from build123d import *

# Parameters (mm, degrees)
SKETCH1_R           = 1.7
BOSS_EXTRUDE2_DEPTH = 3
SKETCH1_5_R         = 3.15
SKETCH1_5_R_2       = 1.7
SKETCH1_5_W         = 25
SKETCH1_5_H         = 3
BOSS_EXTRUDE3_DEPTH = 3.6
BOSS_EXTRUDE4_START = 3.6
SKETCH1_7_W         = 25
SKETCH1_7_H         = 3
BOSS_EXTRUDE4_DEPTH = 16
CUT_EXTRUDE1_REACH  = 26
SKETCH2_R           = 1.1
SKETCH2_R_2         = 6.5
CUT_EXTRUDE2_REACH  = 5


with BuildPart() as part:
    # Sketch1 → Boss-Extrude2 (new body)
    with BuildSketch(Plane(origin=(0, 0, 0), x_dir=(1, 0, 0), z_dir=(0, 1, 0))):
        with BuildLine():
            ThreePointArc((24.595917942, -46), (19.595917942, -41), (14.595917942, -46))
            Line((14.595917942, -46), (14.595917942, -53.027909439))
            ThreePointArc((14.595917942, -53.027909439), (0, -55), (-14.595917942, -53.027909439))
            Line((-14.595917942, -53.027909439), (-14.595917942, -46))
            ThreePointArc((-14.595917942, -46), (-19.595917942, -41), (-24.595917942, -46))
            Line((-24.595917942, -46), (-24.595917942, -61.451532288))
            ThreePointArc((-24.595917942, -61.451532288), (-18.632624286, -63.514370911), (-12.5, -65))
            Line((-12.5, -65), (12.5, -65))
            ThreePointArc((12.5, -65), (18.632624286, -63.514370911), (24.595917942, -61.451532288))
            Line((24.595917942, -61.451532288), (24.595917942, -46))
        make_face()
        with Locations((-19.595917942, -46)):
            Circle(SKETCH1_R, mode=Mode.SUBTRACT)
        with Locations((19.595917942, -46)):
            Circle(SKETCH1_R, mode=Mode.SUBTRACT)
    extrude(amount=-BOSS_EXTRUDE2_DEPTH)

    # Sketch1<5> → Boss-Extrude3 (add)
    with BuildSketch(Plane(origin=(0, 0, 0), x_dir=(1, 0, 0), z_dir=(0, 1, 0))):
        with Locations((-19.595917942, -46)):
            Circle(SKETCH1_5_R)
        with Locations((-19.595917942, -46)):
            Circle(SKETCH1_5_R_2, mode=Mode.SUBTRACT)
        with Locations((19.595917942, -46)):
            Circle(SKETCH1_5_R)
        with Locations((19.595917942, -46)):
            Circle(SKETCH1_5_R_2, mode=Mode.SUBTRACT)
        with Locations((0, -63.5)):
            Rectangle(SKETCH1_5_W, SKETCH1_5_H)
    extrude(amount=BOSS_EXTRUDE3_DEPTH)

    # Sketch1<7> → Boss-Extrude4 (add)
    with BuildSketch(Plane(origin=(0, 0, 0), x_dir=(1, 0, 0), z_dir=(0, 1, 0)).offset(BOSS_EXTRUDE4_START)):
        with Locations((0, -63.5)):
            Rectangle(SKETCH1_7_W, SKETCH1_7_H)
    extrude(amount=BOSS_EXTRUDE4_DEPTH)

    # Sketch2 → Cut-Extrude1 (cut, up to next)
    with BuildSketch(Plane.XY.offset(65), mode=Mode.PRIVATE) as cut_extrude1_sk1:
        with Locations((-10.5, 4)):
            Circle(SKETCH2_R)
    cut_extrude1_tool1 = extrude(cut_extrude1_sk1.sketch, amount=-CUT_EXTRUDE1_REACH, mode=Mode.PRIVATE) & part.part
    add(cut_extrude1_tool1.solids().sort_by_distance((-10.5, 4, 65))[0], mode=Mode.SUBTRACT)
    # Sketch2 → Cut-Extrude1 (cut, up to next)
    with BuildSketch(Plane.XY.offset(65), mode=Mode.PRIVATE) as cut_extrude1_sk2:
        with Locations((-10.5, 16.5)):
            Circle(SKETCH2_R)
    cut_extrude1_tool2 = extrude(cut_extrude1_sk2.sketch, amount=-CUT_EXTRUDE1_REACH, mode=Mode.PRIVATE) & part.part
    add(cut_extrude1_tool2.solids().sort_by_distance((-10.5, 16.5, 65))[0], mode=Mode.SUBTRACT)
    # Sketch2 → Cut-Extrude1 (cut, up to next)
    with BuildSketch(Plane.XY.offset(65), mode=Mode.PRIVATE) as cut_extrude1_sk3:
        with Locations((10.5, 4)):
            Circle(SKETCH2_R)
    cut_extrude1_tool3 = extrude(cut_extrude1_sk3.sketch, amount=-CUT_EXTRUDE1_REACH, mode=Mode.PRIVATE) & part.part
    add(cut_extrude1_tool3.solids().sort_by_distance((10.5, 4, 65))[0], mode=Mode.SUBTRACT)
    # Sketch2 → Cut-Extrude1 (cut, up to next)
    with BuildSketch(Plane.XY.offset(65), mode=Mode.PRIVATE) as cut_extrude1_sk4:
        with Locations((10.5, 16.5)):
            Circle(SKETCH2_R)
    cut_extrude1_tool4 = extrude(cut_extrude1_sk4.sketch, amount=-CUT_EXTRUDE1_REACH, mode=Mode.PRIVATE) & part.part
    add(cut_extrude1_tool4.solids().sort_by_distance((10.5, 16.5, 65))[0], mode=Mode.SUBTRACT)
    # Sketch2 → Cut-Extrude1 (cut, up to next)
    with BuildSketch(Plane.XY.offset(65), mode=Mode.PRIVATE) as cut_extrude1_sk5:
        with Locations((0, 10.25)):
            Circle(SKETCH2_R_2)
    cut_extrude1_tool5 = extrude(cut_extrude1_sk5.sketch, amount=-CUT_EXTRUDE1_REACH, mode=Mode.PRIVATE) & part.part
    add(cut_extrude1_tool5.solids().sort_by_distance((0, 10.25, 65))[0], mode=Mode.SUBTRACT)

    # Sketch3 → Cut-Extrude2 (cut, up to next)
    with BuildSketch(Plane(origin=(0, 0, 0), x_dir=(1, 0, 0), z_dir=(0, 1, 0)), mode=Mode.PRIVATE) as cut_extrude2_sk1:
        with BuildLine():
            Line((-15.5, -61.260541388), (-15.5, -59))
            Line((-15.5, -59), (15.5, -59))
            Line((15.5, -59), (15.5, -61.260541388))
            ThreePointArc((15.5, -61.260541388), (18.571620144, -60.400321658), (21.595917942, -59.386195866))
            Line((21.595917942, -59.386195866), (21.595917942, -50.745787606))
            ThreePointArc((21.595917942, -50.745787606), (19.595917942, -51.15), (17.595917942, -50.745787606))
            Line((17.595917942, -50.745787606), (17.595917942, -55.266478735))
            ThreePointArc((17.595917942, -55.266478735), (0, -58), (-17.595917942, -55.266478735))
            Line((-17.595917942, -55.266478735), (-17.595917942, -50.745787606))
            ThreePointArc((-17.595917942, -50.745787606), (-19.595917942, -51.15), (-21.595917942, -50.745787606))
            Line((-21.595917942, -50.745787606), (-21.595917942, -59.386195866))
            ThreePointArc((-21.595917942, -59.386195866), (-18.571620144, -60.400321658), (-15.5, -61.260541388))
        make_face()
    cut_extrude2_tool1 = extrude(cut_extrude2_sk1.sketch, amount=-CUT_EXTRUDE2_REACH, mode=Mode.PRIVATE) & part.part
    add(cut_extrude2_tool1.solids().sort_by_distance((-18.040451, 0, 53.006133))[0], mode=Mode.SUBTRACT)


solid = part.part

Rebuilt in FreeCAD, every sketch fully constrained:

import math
import FreeCAD as App
import Part
import Sketcher

doc = App.newDocument("Part")
params = doc.addObject("Spreadsheet::Sheet", "Params")
for row, (alias, value) in enumerate([
    ("sketch1_radius", "5 mm"),
    ("sketch1_radius2", "55 mm"),
    ("sketch1_diameter", "3.4 mm"),
    ("sketch1_width", "25 mm"),
    ("pad1_length", "3 mm"),
    ("sketch2_diameter", "6.3 mm"),
    ("sketch2_diameter2", "3.4 mm"),
    ("sketch2_width", "25 mm"),
    ("sketch2_height", "3 mm"),
    ("pad2_length", "3.6 mm"),
    ("sketch3_width", "25 mm"),
    ("sketch3_height", "3 mm"),
    ("pad3_length", "16 mm"),
    ("sketch4_diameter", "2.2 mm"),
    ("sketch5_diameter", "2.2 mm"),
    ("sketch6_diameter", "2.2 mm"),
    ("sketch7_diameter", "2.2 mm"),
    ("sketch8_diameter", "13 mm"),
    ("sketch9_radius", "58 mm"),
    ("sketch9_width", "31 mm"),
    ("sketch9_radius2", "5.15 mm"),
], start=1):
    params.set(f"A{row}", alias)
    params.set(f"B{row}", "=" + value)
    params.setAlias(f"B{row}", alias)

body = doc.addObject("PartDesign::Body", "Body")

# Sketch on XZ plane
sketch1 = body.newObject("Sketcher::SketchObject", "Sketch")
sketch1.AttachmentSupport = (doc.getObject("XZ_Plane"), [""])
sketch1.MapMode = "FlatFace"
sketch1.addGeometry([
    Part.ArcOfCircle(Part.Circle(App.Vector(19.595918, 46, 0), App.Vector(0, 0, 1), 5), math.radians(180), math.radians(360)),  # 0
    Part.LineSegment(App.Vector(14.595918, 46, 0), App.Vector(14.595918, 53.027909, 0)),  # 1
    Part.ArcOfCircle(Part.Circle(App.Vector(0, 0, 0), App.Vector(0, 0, 1), 55), math.radians(74.610447), math.radians(105.389553)),  # 2
    Part.LineSegment(App.Vector(-14.595918, 53.027909, 0), App.Vector(-14.595918, 46, 0)),  # 3
    Part.ArcOfCircle(Part.Circle(App.Vector(-19.595918, 46, 0), App.Vector(0, 0, 1), 5), math.radians(180), math.radians(360)),  # 4
    Part.LineSegment(App.Vector(-24.595918, 46, 0), App.Vector(-24.595918, 61.451532, 0)),  # 5
    Part.ArcOfCircle(Part.Circle(App.Vector(0, 0, 0), App.Vector(0, 0, 1), 66.191011), math.radians(100.885527), math.radians(111.81371)),  # 6
    Part.LineSegment(App.Vector(-12.5, 65, 0), App.Vector(12.5, 65, 0)),  # 7
    Part.ArcOfCircle(Part.Circle(App.Vector(0, 0, 0), App.Vector(0, 0, 1), 66.191011), math.radians(68.18629), math.radians(79.114473)),  # 8
    Part.LineSegment(App.Vector(24.595918, 61.451532, 0), App.Vector(24.595918, 46, 0)),  # 9
    Part.Circle(App.Vector(-19.595918, 46, 0), App.Vector(0, 0, 1), 1.7),  # 10
    Part.Circle(App.Vector(19.595918, 46, 0), App.Vector(0, 0, 1), 1.7),  # 11
], False)
sketch1.addConstraint([
    Sketcher.Constraint("Tangent", 0, 1, 1, 1),
    Sketcher.Constraint("Coincident", 1, 2, 2, 1),
    Sketcher.Constraint("Coincident", 2, 2, 3, 1),
    Sketcher.Constraint("Tangent", 3, 2, 4, 2),
    Sketcher.Constraint("Tangent", 4, 1, 5, 1),
    Sketcher.Constraint("Coincident", 5, 2, 6, 2),
    Sketcher.Constraint("Coincident", 6, 1, 7, 1),
    Sketcher.Constraint("Coincident", 7, 2, 8, 2),
    Sketcher.Constraint("Coincident", 8, 1, 9, 1),
    Sketcher.Constraint("Tangent", 9, 2, 0, 2),
    Sketcher.Constraint("Vertical", 1),
    Sketcher.Constraint("Vertical", 3),
    Sketcher.Constraint("Vertical", 5),
    Sketcher.Constraint("Horizontal", 7),
    Sketcher.Constraint("Vertical", 9),
    Sketcher.Constraint("Coincident", 2, 3, -1, 1),
    Sketcher.Constraint("Coincident", 6, 3, -1, 1),
    Sketcher.Constraint("Coincident", 8, 3, -1, 1),
    Sketcher.Constraint("Coincident", 10, 3, 4, 3),
    Sketcher.Constraint("Coincident", 11, 3, 0, 3),
    Sketcher.Constraint("Equal", 0, 4),
    Sketcher.Constraint("Equal", 6, 8),
    Sketcher.Constraint("Equal", 10, 11),
    Sketcher.Constraint("Symmetric", 0, 3, 4, 3, -2),
    Sketcher.Constraint("Radius", 0, 5.0),
    Sketcher.Constraint("Radius", 2, 55.0),
    Sketcher.Constraint("Diameter", 10, 3.4),
    Sketcher.Constraint("DistanceX", 7, 1, 7, 2, 25.0),
    Sketcher.Constraint("DistanceY", -1, 1, 0, 3, 46.0),
    Sketcher.Constraint("DistanceY", -1, 1, 6, 1, 65.0),
    Sketcher.Constraint("DistanceY", 1, 1, 1, 2, 7.027909),
])
sketch1.setExpression("Constraints[24]", "Params.sketch1_radius")
sketch1.setExpression("Constraints[25]", "Params.sketch1_radius2")
sketch1.setExpression("Constraints[26]", "Params.sketch1_diameter")
sketch1.setExpression("Constraints[27]", "Params.sketch1_width")
pad1 = body.newObject("PartDesign::Pad", "Pad")
pad1.Profile = sketch1
pad1.setExpression("Length", "Params.pad1_length")

# Sketch on XZ plane
sketch2 = body.newObject("Sketcher::SketchObject", "Sketch001")
sketch2.AttachmentSupport = (doc.getObject("XZ_Plane"), [""])
sketch2.MapMode = "FlatFace"
sketch2.addGeometry([
    Part.Circle(App.Vector(-19.595918, 46, 0), App.Vector(0, 0, 1), 3.15),  # 0
    Part.Circle(App.Vector(-19.595918, 46, 0), App.Vector(0, 0, 1), 1.7),  # 1
    Part.Circle(App.Vector(19.595918, 46, 0), App.Vector(0, 0, 1), 3.15),  # 2
    Part.Circle(App.Vector(19.595918, 46, 0), App.Vector(0, 0, 1), 1.7),  # 3
    Part.LineSegment(App.Vector(-12.5, 62, 0), App.Vector(-12.5, 65, 0)),  # 4
    Part.LineSegment(App.Vector(-12.5, 65, 0), App.Vector(12.5, 65, 0)),  # 5
    Part.LineSegment(App.Vector(12.5, 65, 0), App.Vector(12.5, 62, 0)),  # 6
    Part.LineSegment(App.Vector(12.5, 62, 0), App.Vector(-12.5, 62, 0)),  # 7
], False)
sketch2.addConstraint([
    Sketcher.Constraint("Coincident", 4, 2, 5, 1),
    Sketcher.Constraint("Coincident", 5, 2, 6, 1),
    Sketcher.Constraint("Coincident", 6, 2, 7, 1),
    Sketcher.Constraint("Coincident", 7, 2, 4, 1),
    Sketcher.Constraint("Vertical", 4),
    Sketcher.Constraint("Horizontal", 5),
    Sketcher.Constraint("Vertical", 6),
    Sketcher.Constraint("Horizontal", 7),
    Sketcher.Constraint("Coincident", 1, 3, 0, 3),
    Sketcher.Constraint("Coincident", 3, 3, 2, 3),
    Sketcher.Constraint("Equal", 0, 2),
    Sketcher.Constraint("Equal", 1, 3),
    Sketcher.Constraint("Symmetric", 0, 3, 2, 3, -2),
    Sketcher.Constraint("Diameter", 0, 6.3),
    Sketcher.Constraint("Diameter", 1, 3.4),
    Sketcher.Constraint("DistanceX", 5, 1, 5, 2, 25.0),
    Sketcher.Constraint("DistanceY", 4, 1, 4, 2, 3.0),
    Sketcher.Constraint("DistanceY", -1, 1, 0, 3, 46.0),
    Sketcher.Constraint("DistanceY", -1, 1, 4, 2, 65.0),
    Sketcher.Constraint("DistanceX", 4, 2, -1, 1, 12.5),
    Sketcher.Constraint("DistanceX", 0, 3, -1, 1, 19.595918),
])
sketch2.setExpression("Constraints[13]", "Params.sketch2_diameter")
sketch2.setExpression("Constraints[14]", "Params.sketch2_diameter2")
sketch2.setExpression("Constraints[15]", "Params.sketch2_width")
sketch2.setExpression("Constraints[16]", "Params.sketch2_height")
pad2 = body.newObject("PartDesign::Pad", "Pad001")
pad2.Profile = sketch2
pad2.setExpression("Length", "Params.pad2_length")
pad2.Reversed = True

# Sketch on XZ plane
sketch3 = body.newObject("Sketcher::SketchObject", "Sketch002")
sketch3.AttachmentSupport = (doc.getObject("XZ_Plane"), [""])
sketch3.MapMode = "FlatFace"
sketch3.AttachmentOffset = App.Placement(App.Vector(0, 0, -3.6), App.Rotation())
sketch3.addGeometry([
    Part.LineSegment(App.Vector(-12.5, 62, 0), App.Vector(-12.5, 65, 0)),
    Part.LineSegment(App.Vector(-12.5, 65, 0), App.Vector(12.5, 65, 0)),
    Part.LineSegment(App.Vector(12.5, 65, 0), App.Vector(12.5, 62, 0)),
    Part.LineSegment(App.Vector(12.5, 62, 0), App.Vector(-12.5, 62, 0)),
], False)
sketch3.addConstraint([
    Sketcher.Constraint("Coincident", 0, 2, 1, 1),
    Sketcher.Constraint("Coincident", 1, 2, 2, 1),
    Sketcher.Constraint("Coincident", 2, 2, 3, 1),
    Sketcher.Constraint("Coincident", 3, 2, 0, 1),
    Sketcher.Constraint("Vertical", 0),
    Sketcher.Constraint("Horizontal", 1),
    Sketcher.Constraint("Vertical", 2),
    Sketcher.Constraint("Horizontal", 3),
    Sketcher.Constraint("DistanceX", 1, 1, 1, 2, 25.0),
    Sketcher.Constraint("DistanceY", 0, 1, 0, 2, 3.0),
    Sketcher.Constraint("DistanceY", -1, 1, 0, 2, 65.0),
    Sketcher.Constraint("DistanceX", 0, 2, -1, 1, 12.5),
])
sketch3.setExpression("Constraints[8]", "Params.sketch3_width")
sketch3.setExpression("Constraints[9]", "Params.sketch3_height")
pad3 = body.newObject("PartDesign::Pad", "Pad002")
pad3.Profile = sketch3
pad3.setExpression("Length", "Params.pad3_length")
pad3.Reversed = True

# Sketch on XY plane
sketch4 = body.newObject("Sketcher::SketchObject", "Sketch003")
sketch4.AttachmentSupport = (doc.getObject("XY_Plane"), [""])
sketch4.MapMode = "FlatFace"
sketch4.AttachmentOffset = App.Placement(App.Vector(0, 0, 65), App.Rotation())
sketch4.addGeometry(Part.Circle(App.Vector(-10.5, 4, 0), App.Vector(0, 0, 1), 1.1), False)
sketch4.addConstraint([
    Sketcher.Constraint("Diameter", 0, 2.2),
    Sketcher.Constraint("DistanceY", -1, 1, 0, 3, 4.0),
    Sketcher.Constraint("DistanceX", 0, 3, -1, 1, 10.5),
])
sketch4.setExpression("Constraints[0]", "Params.sketch4_diameter")
pocket1 = body.newObject("PartDesign::Pocket", "Pocket")
pocket1.Profile = sketch4
pocket1.Type = "UpToFirst"

# Sketch on XY plane
sketch5 = body.newObject("Sketcher::SketchObject", "Sketch004")
sketch5.AttachmentSupport = (doc.getObject("XY_Plane"), [""])
sketch5.MapMode = "FlatFace"
sketch5.AttachmentOffset = App.Placement(App.Vector(0, 0, 65), App.Rotation())
sketch5.addGeometry(Part.Circle(App.Vector(-10.5, 16.5, 0), App.Vector(0, 0, 1), 1.1), False)
sketch5.addConstraint([
    Sketcher.Constraint("Diameter", 0, 2.2),
    Sketcher.Constraint("DistanceX", 0, 3, -1, 1, 10.5),
    Sketcher.Constraint("DistanceY", -1, 1, 0, 3, 16.5),
])
sketch5.setExpression("Constraints[0]", "Params.sketch5_diameter")
pocket2 = body.newObject("PartDesign::Pocket", "Pocket001")
pocket2.Profile = sketch5
pocket2.Type = "UpToFirst"

# Sketch on XY plane
sketch6 = body.newObject("Sketcher::SketchObject", "Sketch005")
sketch6.AttachmentSupport = (doc.getObject("XY_Plane"), [""])
sketch6.MapMode = "FlatFace"
sketch6.AttachmentOffset = App.Placement(App.Vector(0, 0, 65), App.Rotation())
sketch6.addGeometry(Part.Circle(App.Vector(10.5, 4, 0), App.Vector(0, 0, 1), 1.1), False)
sketch6.addConstraint([
    Sketcher.Constraint("Diameter", 0, 2.2),
    Sketcher.Constraint("DistanceY", -1, 1, 0, 3, 4.0),
    Sketcher.Constraint("DistanceX", -1, 1, 0, 3, 10.5),
])
sketch6.setExpression("Constraints[0]", "Params.sketch6_diameter")
pocket3 = body.newObject("PartDesign::Pocket", "Pocket002")
pocket3.Profile = sketch6
pocket3.Type = "UpToFirst"

# Sketch on XY plane
sketch7 = body.newObject("Sketcher::SketchObject", "Sketch006")
sketch7.AttachmentSupport = (doc.getObject("XY_Plane"), [""])
sketch7.MapMode = "FlatFace"
sketch7.AttachmentOffset = App.Placement(App.Vector(0, 0, 65), App.Rotation())
sketch7.addGeometry(Part.Circle(App.Vector(10.5, 16.5, 0), App.Vector(0, 0, 1), 1.1), False)
sketch7.addConstraint([
    Sketcher.Constraint("Diameter", 0, 2.2),
    Sketcher.Constraint("DistanceX", -1, 1, 0, 3, 10.5),
    Sketcher.Constraint("DistanceY", -1, 1, 0, 3, 16.5),
])
sketch7.setExpression("Constraints[0]", "Params.sketch7_diameter")
pocket4 = body.newObject("PartDesign::Pocket", "Pocket003")
pocket4.Profile = sketch7
pocket4.Type = "UpToFirst"

# Sketch on XY plane
sketch8 = body.newObject("Sketcher::SketchObject", "Sketch007")
sketch8.AttachmentSupport = (doc.getObject("XY_Plane"), [""])
sketch8.MapMode = "FlatFace"
sketch8.AttachmentOffset = App.Placement(App.Vector(0, 0, 65), App.Rotation())
sketch8.addGeometry(Part.Circle(App.Vector(0, 10.25, 0), App.Vector(0, 0, 1), 6.5), False)
sketch8.addConstraint([
    Sketcher.Constraint("PointOnObject", 0, 3, -2),
    Sketcher.Constraint("Diameter", 0, 13.0),
    Sketcher.Constraint("DistanceY", -1, 1, 0, 3, 10.25),
])
sketch8.setExpression("Constraints[1]", "Params.sketch8_diameter")
pocket5 = body.newObject("PartDesign::Pocket", "Pocket004")
pocket5.Profile = sketch8
pocket5.Type = "UpToFirst"

# Sketch on XZ plane
sketch9 = body.newObject("Sketcher::SketchObject", "Sketch008")
sketch9.AttachmentSupport = (doc.getObject("XZ_Plane"), [""])
sketch9.MapMode = "FlatFace"
sketch9.addGeometry([
    Part.LineSegment(App.Vector(-15.5, 61.260541, 0), App.Vector(-15.5, 59, 0)),  # 0
    Part.LineSegment(App.Vector(-15.5, 59, 0), App.Vector(15.5, 59, 0)),  # 1
    Part.LineSegment(App.Vector(15.5, 59, 0), App.Vector(15.5, 61.260541, 0)),  # 2
    Part.ArcOfCircle(Part.Circle(App.Vector(0, 0, 0), App.Vector(0, 0, 1), 63.191012), math.radians(70.016095), math.radians(75.801143)),  # 3
    Part.LineSegment(App.Vector(21.595918, 59.386196, 0), App.Vector(21.595918, 50.745788, 0)),  # 4
    Part.ArcOfCircle(Part.Circle(App.Vector(19.595918, 46, 0), App.Vector(0, 0, 1), 5.15), math.radians(67.14816), math.radians(112.85184)),  # 5
    Part.LineSegment(App.Vector(17.595918, 50.745788, 0), App.Vector(17.595918, 55.266479, 0)),  # 6
    Part.ArcOfCircle(Part.Circle(App.Vector(0, 0, 0), App.Vector(0, 0, 1), 58), math.radians(72.339399), math.radians(107.660601)),  # 7
    Part.LineSegment(App.Vector(-17.595918, 55.266479, 0), App.Vector(-17.595918, 50.745788, 0)),  # 8
    Part.ArcOfCircle(Part.Circle(App.Vector(-19.595918, 46, 0), App.Vector(0, 0, 1), 5.15), math.radians(67.14816), math.radians(112.85184)),  # 9
    Part.LineSegment(App.Vector(-21.595918, 50.745788, 0), App.Vector(-21.595918, 59.386196, 0)),  # 10
    Part.ArcOfCircle(Part.Circle(App.Vector(0, 0, 0), App.Vector(0, 0, 1), 63.191012), math.radians(104.198857), math.radians(109.983905)),  # 11
], False)
sketch9.addConstraint([
    Sketcher.Constraint("Coincident", 0, 2, 1, 1),
    Sketcher.Constraint("Coincident", 1, 2, 2, 1),
    Sketcher.Constraint("Coincident", 2, 2, 3, 2),
    Sketcher.Constraint("Coincident", 3, 1, 4, 1),
    Sketcher.Constraint("Coincident", 4, 2, 5, 1),
    Sketcher.Constraint("Coincident", 5, 2, 6, 1),
    Sketcher.Constraint("Coincident", 6, 2, 7, 1),
    Sketcher.Constraint("Coincident", 7, 2, 8, 1),
    Sketcher.Constraint("Coincident", 8, 2, 9, 1),
    Sketcher.Constraint("Coincident", 9, 2, 10, 1),
    Sketcher.Constraint("Coincident", 10, 2, 11, 2),
    Sketcher.Constraint("Coincident", 11, 1, 0, 1),
    Sketcher.Constraint("Vertical", 0),
    Sketcher.Constraint("Horizontal", 1),
    Sketcher.Constraint("Vertical", 2),
    Sketcher.Constraint("Vertical", 4),
    Sketcher.Constraint("Vertical", 6),
    Sketcher.Constraint("Vertical", 8),
    Sketcher.Constraint("Vertical", 10),
    Sketcher.Constraint("Coincident", 3, 3, -1, 1),
    Sketcher.Constraint("Coincident", 7, 3, -1, 1),
    Sketcher.Constraint("Coincident", 11, 3, -1, 1),
    Sketcher.Constraint("Equal", 5, 9),
    Sketcher.Constraint("Equal", 3, 11),
    Sketcher.Constraint("Symmetric", 5, 3, 9, 3, -2),
    Sketcher.Constraint("Horizontal", 4, 2, 5, 2),
    Sketcher.Constraint("Horizontal", 6, 2, 7, 2),
    Sketcher.Constraint("Horizontal", 8, 2, 9, 2),
    Sketcher.Constraint("Horizontal", 2, 2, 11, 1),
    Sketcher.Constraint("Radius", 7, 58.0),
    Sketcher.Constraint("DistanceX", 1, 1, 1, 2, 31.0),
    Sketcher.Constraint("Radius", 5, 5.15),
    Sketcher.Constraint("DistanceY", -1, 1, 5, 3, 46.0),
    Sketcher.Constraint("DistanceY", -1, 1, 0, 2, 59.0),
    Sketcher.Constraint("DistanceX", 5, 3, 3, 1, 2.0),
    Sketcher.Constraint("Radius", 3, 63.191012),
    Sketcher.Constraint("DistanceY", 4, 2, 4, 1, 8.640408),
])
sketch9.setExpression("Constraints[29]", "Params.sketch9_radius")
sketch9.setExpression("Constraints[30]", "Params.sketch9_width")
sketch9.setExpression("Constraints[31]", "Params.sketch9_radius2")
pocket6 = body.newObject("PartDesign::Pocket", "Pocket005")
pocket6.Profile = sketch9
pocket6.Type = "UpToFirst"
pocket6.Reversed = True

doc.recompute()
